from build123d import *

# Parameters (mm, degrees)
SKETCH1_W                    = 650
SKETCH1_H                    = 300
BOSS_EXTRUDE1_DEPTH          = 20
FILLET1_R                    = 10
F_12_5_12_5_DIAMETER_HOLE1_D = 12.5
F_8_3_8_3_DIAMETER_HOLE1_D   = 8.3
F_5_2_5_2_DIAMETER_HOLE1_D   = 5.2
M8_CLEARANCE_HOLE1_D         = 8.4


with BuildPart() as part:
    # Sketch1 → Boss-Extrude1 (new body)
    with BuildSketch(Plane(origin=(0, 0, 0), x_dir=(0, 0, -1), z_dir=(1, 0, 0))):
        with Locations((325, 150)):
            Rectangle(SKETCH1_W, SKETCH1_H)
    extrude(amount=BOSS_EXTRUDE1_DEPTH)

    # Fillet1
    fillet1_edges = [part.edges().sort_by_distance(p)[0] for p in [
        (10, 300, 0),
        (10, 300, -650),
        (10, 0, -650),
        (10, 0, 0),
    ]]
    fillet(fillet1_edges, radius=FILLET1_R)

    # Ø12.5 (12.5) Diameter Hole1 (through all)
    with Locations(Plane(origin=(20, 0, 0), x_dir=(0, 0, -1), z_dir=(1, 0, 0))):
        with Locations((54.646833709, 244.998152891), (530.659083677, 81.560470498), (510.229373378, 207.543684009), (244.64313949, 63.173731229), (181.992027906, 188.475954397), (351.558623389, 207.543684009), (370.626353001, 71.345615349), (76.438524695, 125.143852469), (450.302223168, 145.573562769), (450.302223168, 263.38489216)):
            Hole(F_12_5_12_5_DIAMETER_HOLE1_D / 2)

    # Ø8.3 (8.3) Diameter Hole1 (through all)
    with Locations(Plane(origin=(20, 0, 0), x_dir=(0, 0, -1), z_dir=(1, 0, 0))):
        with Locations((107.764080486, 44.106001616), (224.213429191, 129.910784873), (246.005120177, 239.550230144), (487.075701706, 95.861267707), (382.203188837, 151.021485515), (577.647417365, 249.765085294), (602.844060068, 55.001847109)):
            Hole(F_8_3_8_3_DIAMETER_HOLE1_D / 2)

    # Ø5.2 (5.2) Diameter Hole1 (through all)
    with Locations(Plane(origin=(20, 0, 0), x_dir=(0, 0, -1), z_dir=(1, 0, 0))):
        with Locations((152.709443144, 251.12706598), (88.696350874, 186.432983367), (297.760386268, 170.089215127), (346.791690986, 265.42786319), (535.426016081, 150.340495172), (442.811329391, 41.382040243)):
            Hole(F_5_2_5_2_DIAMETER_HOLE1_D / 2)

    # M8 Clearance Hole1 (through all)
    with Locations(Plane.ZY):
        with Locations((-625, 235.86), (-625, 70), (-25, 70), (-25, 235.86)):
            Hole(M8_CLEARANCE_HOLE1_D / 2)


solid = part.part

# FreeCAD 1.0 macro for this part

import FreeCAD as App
import Part
import Sketcher
from FreeCAD import Vector
Q = App.Units.Quantity


def edges_at(feature, points):
    """Names of the edges that pass closest to the given points."""
    edges = feature.Shape.Edges
    near = lambda p: min(range(len(edges)), key=lambda i: edges[i].distToShape(Part.Vertex(*p))[0])
    return sorted({f"Edge{near(p) + 1}" for p in points})

doc = App.newDocument("Part")
body = doc.addObject("PartDesign::Body", "Body")

# Sketch on YZ plane
sketch1 = body.newObject("Sketcher::SketchObject", "Sketch")
sketch1.AttachmentSupport = (doc.getObject("YZ_Plane"), [""])
sketch1.MapMode = "FlatFace"
sketch1.addGeometry([
    Part.LineSegment(Vector(300, 0, 0), Vector(0, 0, 0)),
    Part.LineSegment(Vector(0, 0, 0), Vector(0, -650, 0)),
    Part.LineSegment(Vector(0, -650, 0), Vector(300, -650, 0)),
    Part.LineSegment(Vector(300, -650, 0), Vector(300, 0, 0)),
], False)
sketch1.addConstraint([
    Sketcher.Constraint("Coincident", 0, 2, 1, 1),
    Sketcher.Constraint("Coincident", 1, 2, 2, 1),
    Sketcher.Constraint("Coincident", 2, 2, 3, 1),
    Sketcher.Constraint("Coincident", 3, 2, 0, 1),
    Sketcher.Constraint("Horizontal", 0),
    Sketcher.Constraint("Vertical", 1),
    Sketcher.Constraint("Horizontal", 2),
    Sketcher.Constraint("Vertical", 3),
    Sketcher.Constraint("Coincident", 0, 2, -1, 1),
    Sketcher.Constraint("DistanceX", 0, 2, 0, 1, Q("300 mm")),
    Sketcher.Constraint("DistanceY", 1, 2, 1, 1, Q("650 mm")),
])
pad1 = body.newObject("PartDesign::Pad", "Pad")
pad1.Profile = sketch1
pad1.Length = 20
doc.recompute()

fillet = body.newObject("PartDesign::Fillet", "Fillet")
fillet.Base = (pad1, edges_at(pad1, [
    (10, 300, 0),
    (10, 300, -650),
    (10, 0, -650),
    (10, 0, 0),
]))
fillet.Radius = 10

# Sketch on YZ plane
sketch2 = body.newObject("Sketcher::SketchObject", "Sketch001")
sketch2.AttachmentSupport = (doc.getObject("YZ_Plane"), [""])
sketch2.MapMode = "FlatFace"
sketch2.AttachmentOffset = App.Placement(Vector(0, 0, 20), App.Rotation())
sketch2.addGeometry([
    Part.Circle(Vector(245, -55, 0), Vector(0, 0, 1), 6),  # 0
    Part.Circle(Vector(82, -531, 0), Vector(0, 0, 1), 6),  # 1
    Part.Circle(Vector(208, -510, 0), Vector(0, 0, 1), 6),  # 2
    Part.Circle(Vector(63, -245, 0), Vector(0, 0, 1), 6),  # 3
    Part.Circle(Vector(188, -182, 0), Vector(0, 0, 1), 6),  # 4
    Part.Circle(Vector(208, -352, 0), Vector(0, 0, 1), 6),  # 5
    Part.Circle(Vector(71, -371, 0), Vector(0, 0, 1), 6),  # 6
    Part.Circle(Vector(125, -76, 0), Vector(0, 0, 1), 6),  # 7
    Part.Circle(Vector(146, -450, 0), Vector(0, 0, 1), 6),  # 8
    Part.Circle(Vector(263, -450, 0), Vector(0, 0, 1), 6),  # 9
], False)
sketch2.addConstraint([
    Sketcher.Constraint("Equal", 0, 1),
    Sketcher.Constraint("Equal", 1, 2),
    Sketcher.Constraint("Equal", 2, 3),
    Sketcher.Constraint("Equal", 3, 4),
    Sketcher.Constraint("Equal", 4, 5),
    Sketcher.Constraint("Equal", 5, 6),
    Sketcher.Constraint("Equal", 6, 7),
    Sketcher.Constraint("Equal", 7, 8),
    Sketcher.Constraint("Equal", 8, 9),
    Sketcher.Constraint("Horizontal", 8, 3, 9, 3),
    Sketcher.Constraint("Vertical", 2, 3, 5, 3),
    Sketcher.Constraint("Diameter", 0, Q("12.5 mm")),
    Sketcher.Constraint("DistanceX", 4, 3, 0, 3, Q("56.522198 mm")),
    Sketcher.Constraint("DistanceX", 7, 3, 0, 3, Q("119.8543 mm")),
    Sketcher.Constraint("DistanceY", 5, 3, 7, 3, Q("275.120099 mm")),
    Sketcher.Constraint("DistanceY", 8, 3, 5, 3, Q("98.7436 mm")),
    Sketcher.Constraint("DistanceX", -1, 1, 1, 3, Q("81.56047 mm")),
    Sketcher.Constraint("DistanceX", -1, 1, 3, 3, Q("63.173731 mm")),
    Sketcher.Constraint("DistanceY", 3, 3, -1, 1, Q("244.643139 mm")),
    Sketcher.Constraint("DistanceY", 1, 3, 0, 3, Q("476.01225 mm")),
    Sketcher.Constraint("DistanceY", 1, 3, 2, 3, Q("20.42971 mm")),
    Sketcher.Constraint("DistanceX", 2, 3, 0, 3, Q("37.454469 mm")),
    Sketcher.Constraint("DistanceX", 3, 3, 0, 3, Q("181.824422 mm")),
    Sketcher.Constraint("DistanceY", 3, 3, 4, 3, Q("62.651112 mm")),
    Sketcher.Constraint("DistanceY", 2, 3, 5, 3, Q("158.67075 mm")),
    Sketcher.Constraint("DistanceX", 6, 3, 5, 3, Q("136.198069 mm")),
    Sketcher.Constraint("DistanceY", 6, 3, 5, 3, Q("19.06773 mm")),
    Sketcher.Constraint("DistanceX", 8, 3, 2, 3, Q("61.970121 mm")),
    Sketcher.Constraint("DistanceX", 2, 3, 9, 3, Q("55.841208 mm")),
    Sketcher.Constraint("DistanceY", 0, 3, -1, 1, Q("54.646834 mm")),
])
doc.recompute()
hole = body.newObject("PartDesign::Hole", "Hole")
hole.Profile = sketch2
hole.ThreadType = "None"
hole.Diameter = 12.5
hole.DepthType = "ThroughAll"

# Sketch on YZ plane
sketch3 = body.newObject("Sketcher::SketchObject", "Sketch002")
sketch3.AttachmentSupport = (doc.getObject("YZ_Plane"), [""])
sketch3.MapMode = "FlatFace"
sketch3.AttachmentOffset = App.Placement(Vector(0, 0, 20), App.Rotation())
sketch3.addGeometry([
    Part.Circle(Vector(44.1, -107.8, 0), Vector(0, 0, 1), 4.2),  # 0
    Part.Circle(Vector(129.9, -224.2, 0), Vector(0, 0, 1), 4.2),  # 1
    Part.Circle(Vector(239.6, -246, 0), Vector(0, 0, 1), 4.2),  # 2
    Part.Circle(Vector(95.9, -487.1, 0), Vector(0, 0, 1), 4.2),  # 3
    Part.Circle(Vector(151, -382.2, 0), Vector(0, 0, 1), 4.2),  # 4
    Part.Circle(Vector(249.8, -577.6, 0), Vector(0, 0, 1), 4.2),  # 5
    Part.Circle(Vector(55, -602.8, 0), Vector(0, 0, 1), 4.2),  # 6
], False)
sketch3.addConstraint([
    Sketcher.Constraint("Equal", 0, 1),
    Sketcher.Constraint("Equal", 1, 2),
    Sketcher.Constraint("Equal", 2, 3),
    Sketcher.Constraint("Equal", 3, 4),
    Sketcher.Constraint("Equal", 4, 5),
    Sketcher.Constraint("Equal", 5, 6),
    Sketcher.Constraint("Diameter", 0, Q("8.3 mm")),
    Sketcher.Constraint("DistanceX", -1, 1, 0, 3, Q("44.106002 mm")),
    Sketcher.Constraint("DistanceY", 3, 3, -1, 1, Q("487.075702 mm")),
    Sketcher.Constraint("DistanceX", 1, 3, 4, 3, Q("21.110701 mm")),
    Sketcher.Constraint("DistanceX", 4, 3, 5, 3, Q("98.7436 mm")),
    Sketcher.Constraint("DistanceY", 0, 3, -1, 1, Q("107.76408 mm")),
    Sketcher.Constraint("DistanceY", 1, 3, -1, 1, Q("224.213429 mm")),
    Sketcher.Constraint("DistanceX", -1, 1, 2, 3, Q("239.55023 mm")),
    Sketcher.Constraint("DistanceY", 2, 3, -1, 1, Q("246.00512 mm")),
    Sketcher.Constraint("DistanceY", 4, 3, -1, 1, Q("382.203189 mm")),
    Sketcher.Constraint("DistanceY", 6, 3, -1, 1, Q("602.84406 mm")),
    Sketcher.Constraint("DistanceY", 5, 3, 4, 3, Q("195.444229 mm")),
    Sketcher.Constraint("DistanceX", 6, 3, 3, 3, Q("40.859421 mm")),
    Sketcher.Constraint("DistanceX", 6, 3, 5, 3, Q("194.763238 mm")),
    Sketcher.Constraint("DistanceX", -1, 1, 1, 3, Q("129.910785 mm")),
])
doc.recompute()
hole2 = body.newObject("PartDesign::Hole", "Hole001")
hole2.Profile = sketch3
hole2.ThreadType = "None"
hole2.Diameter = 8.3
hole2.DepthType = "ThroughAll"

# Sketch on YZ plane
sketch4 = body.newObject("Sketcher::SketchObject", "Sketch003")
sketch4.AttachmentSupport = (doc.getObject("YZ_Plane"), [""])
sketch4.MapMode = "FlatFace"
sketch4.AttachmentOffset = App.Placement(Vector(0, 0, 20), App.Rotation())
sketch4.addGeometry([
    Part.Circle(Vector(251.1, -152.7, 0), Vector(0, 0, 1), 2.6),  # 0
    Part.Circle(Vector(186.4, -88.7, 0), Vector(0, 0, 1), 2.6),  # 1
    Part.Circle(Vector(170.1, -297.8, 0), Vector(0, 0, 1), 2.6),  # 2
    Part.Circle(Vector(265.4, -346.8, 0), Vector(0, 0, 1), 2.6),  # 3
    Part.Circle(Vector(150.3, -535.4, 0), Vector(0, 0, 1), 2.6),  # 4
    Part.Circle(Vector(41.4, -442.8, 0), Vector(0, 0, 1), 2.6),  # 5
], False)
sketch4.addConstraint([
    Sketcher.Constraint("Equal", 0, 1),
    Sketcher.Constraint("Equal", 1, 2),
    Sketcher.Constraint("Equal", 2, 3),
    Sketcher.Constraint("Equal", 3, 4),
    Sketcher.Constraint("Equal", 4, 5),
    Sketcher.Constraint("Diameter", 0, Q("5.2 mm")),
    Sketcher.Constraint("DistanceY", 1, 3, -1, 1, Q("88.696351 mm")),
    Sketcher.Constraint("DistanceY", 3, 3, -1, 1, Q("346.791691 mm")),
    Sketcher.Constraint("DistanceX", -1, 1, 5, 3, Q("41.38204 mm")),
    Sketcher.Constraint("DistanceY", 5, 3, -1, 1, Q("442.811329 mm")),
    Sketcher.Constraint("DistanceX", 2, 3, 0, 3, Q("81.037851 mm")),
    Sketcher.Constraint("DistanceX", 2, 3, 1, 3, Q("16.343768 mm")),
    Sketcher.Constraint("DistanceX", 2, 3, 3, 3, Q("95.338648 mm")),
    Sketcher.Constraint("DistanceX", 4, 3, 3, 3, Q("115.087368 mm")),
    Sketcher.Constraint("DistanceY", 4, 3, 2, 3, Q("237.66563 mm")),
    Sketcher.Constraint("DistanceX", -1, 1, 0, 3, Q("251.127066 mm")),
    Sketcher.Constraint("DistanceY", 0, 3, -1, 1, Q("152.709443 mm")),
    Sketcher.Constraint("DistanceY", 2, 3, -1, 1, Q("297.760386 mm")),
])
doc.recompute()
hole3 = body.newObject("PartDesign::Hole", "Hole002")
hole3.Profile = sketch4
hole3.ThreadType = "None"
hole3.Diameter = 5.2
hole3.DepthType = "ThroughAll"

# Sketch on YZ plane
sketch5 = body.newObject("Sketcher::SketchObject", "Sketch004")
sketch5.AttachmentSupport = (doc.getObject("YZ_Plane"), [""])
sketch5.MapMode = "FlatFace"
sketch5.addGeometry([
    Part.Circle(Vector(235.9, -625, 0), Vector(0, 0, 1), 4.2),
    Part.Circle(Vector(70, -625, 0), Vector(0, 0, 1), 4.2),
    Part.Circle(Vector(70, -25, 0), Vector(0, 0, 1), 4.2),
    Part.Circle(Vector(235.9, -25, 0), Vector(0, 0, 1), 4.2),
], False)
sketch5.addConstraint([
    Sketcher.Constraint("Equal", 0, 1),
    Sketcher.Constraint("Equal", 1, 2),
    Sketcher.Constraint("Equal", 2, 3),
    Sketcher.Constraint("Horizontal", 0, 3, 1, 3),
    Sketcher.Constraint("Horizontal", 2, 3, 3, 3),
    Sketcher.Constraint("Vertical", 1, 3, 2, 3),
    Sketcher.Constraint("Vertical", 0, 3, 3, 3),
    Sketcher.Constraint("Diameter", 0, Q("8.4 mm")),
    Sketcher.Constraint("DistanceY", 0, 3, -1, 1, Q("625 mm")),
    Sketcher.Constraint("DistanceX", -1, 1, 1, 3, Q("70 mm")),
    Sketcher.Constraint("DistanceY", 2, 3, -1, 1, Q("25 mm")),
    Sketcher.Constraint("DistanceX", -1, 1, 0, 3, Q("235.86 mm")),
])
doc.recompute()
hole4 = body.newObject("PartDesign::Hole", "Hole003")
hole4.Profile = sketch5
hole4.ThreadType = "None"
hole4.Diameter = 8.4
hole4.DepthType = "ThroughAll"
hole4.Reversed = True

doc.recompute()
